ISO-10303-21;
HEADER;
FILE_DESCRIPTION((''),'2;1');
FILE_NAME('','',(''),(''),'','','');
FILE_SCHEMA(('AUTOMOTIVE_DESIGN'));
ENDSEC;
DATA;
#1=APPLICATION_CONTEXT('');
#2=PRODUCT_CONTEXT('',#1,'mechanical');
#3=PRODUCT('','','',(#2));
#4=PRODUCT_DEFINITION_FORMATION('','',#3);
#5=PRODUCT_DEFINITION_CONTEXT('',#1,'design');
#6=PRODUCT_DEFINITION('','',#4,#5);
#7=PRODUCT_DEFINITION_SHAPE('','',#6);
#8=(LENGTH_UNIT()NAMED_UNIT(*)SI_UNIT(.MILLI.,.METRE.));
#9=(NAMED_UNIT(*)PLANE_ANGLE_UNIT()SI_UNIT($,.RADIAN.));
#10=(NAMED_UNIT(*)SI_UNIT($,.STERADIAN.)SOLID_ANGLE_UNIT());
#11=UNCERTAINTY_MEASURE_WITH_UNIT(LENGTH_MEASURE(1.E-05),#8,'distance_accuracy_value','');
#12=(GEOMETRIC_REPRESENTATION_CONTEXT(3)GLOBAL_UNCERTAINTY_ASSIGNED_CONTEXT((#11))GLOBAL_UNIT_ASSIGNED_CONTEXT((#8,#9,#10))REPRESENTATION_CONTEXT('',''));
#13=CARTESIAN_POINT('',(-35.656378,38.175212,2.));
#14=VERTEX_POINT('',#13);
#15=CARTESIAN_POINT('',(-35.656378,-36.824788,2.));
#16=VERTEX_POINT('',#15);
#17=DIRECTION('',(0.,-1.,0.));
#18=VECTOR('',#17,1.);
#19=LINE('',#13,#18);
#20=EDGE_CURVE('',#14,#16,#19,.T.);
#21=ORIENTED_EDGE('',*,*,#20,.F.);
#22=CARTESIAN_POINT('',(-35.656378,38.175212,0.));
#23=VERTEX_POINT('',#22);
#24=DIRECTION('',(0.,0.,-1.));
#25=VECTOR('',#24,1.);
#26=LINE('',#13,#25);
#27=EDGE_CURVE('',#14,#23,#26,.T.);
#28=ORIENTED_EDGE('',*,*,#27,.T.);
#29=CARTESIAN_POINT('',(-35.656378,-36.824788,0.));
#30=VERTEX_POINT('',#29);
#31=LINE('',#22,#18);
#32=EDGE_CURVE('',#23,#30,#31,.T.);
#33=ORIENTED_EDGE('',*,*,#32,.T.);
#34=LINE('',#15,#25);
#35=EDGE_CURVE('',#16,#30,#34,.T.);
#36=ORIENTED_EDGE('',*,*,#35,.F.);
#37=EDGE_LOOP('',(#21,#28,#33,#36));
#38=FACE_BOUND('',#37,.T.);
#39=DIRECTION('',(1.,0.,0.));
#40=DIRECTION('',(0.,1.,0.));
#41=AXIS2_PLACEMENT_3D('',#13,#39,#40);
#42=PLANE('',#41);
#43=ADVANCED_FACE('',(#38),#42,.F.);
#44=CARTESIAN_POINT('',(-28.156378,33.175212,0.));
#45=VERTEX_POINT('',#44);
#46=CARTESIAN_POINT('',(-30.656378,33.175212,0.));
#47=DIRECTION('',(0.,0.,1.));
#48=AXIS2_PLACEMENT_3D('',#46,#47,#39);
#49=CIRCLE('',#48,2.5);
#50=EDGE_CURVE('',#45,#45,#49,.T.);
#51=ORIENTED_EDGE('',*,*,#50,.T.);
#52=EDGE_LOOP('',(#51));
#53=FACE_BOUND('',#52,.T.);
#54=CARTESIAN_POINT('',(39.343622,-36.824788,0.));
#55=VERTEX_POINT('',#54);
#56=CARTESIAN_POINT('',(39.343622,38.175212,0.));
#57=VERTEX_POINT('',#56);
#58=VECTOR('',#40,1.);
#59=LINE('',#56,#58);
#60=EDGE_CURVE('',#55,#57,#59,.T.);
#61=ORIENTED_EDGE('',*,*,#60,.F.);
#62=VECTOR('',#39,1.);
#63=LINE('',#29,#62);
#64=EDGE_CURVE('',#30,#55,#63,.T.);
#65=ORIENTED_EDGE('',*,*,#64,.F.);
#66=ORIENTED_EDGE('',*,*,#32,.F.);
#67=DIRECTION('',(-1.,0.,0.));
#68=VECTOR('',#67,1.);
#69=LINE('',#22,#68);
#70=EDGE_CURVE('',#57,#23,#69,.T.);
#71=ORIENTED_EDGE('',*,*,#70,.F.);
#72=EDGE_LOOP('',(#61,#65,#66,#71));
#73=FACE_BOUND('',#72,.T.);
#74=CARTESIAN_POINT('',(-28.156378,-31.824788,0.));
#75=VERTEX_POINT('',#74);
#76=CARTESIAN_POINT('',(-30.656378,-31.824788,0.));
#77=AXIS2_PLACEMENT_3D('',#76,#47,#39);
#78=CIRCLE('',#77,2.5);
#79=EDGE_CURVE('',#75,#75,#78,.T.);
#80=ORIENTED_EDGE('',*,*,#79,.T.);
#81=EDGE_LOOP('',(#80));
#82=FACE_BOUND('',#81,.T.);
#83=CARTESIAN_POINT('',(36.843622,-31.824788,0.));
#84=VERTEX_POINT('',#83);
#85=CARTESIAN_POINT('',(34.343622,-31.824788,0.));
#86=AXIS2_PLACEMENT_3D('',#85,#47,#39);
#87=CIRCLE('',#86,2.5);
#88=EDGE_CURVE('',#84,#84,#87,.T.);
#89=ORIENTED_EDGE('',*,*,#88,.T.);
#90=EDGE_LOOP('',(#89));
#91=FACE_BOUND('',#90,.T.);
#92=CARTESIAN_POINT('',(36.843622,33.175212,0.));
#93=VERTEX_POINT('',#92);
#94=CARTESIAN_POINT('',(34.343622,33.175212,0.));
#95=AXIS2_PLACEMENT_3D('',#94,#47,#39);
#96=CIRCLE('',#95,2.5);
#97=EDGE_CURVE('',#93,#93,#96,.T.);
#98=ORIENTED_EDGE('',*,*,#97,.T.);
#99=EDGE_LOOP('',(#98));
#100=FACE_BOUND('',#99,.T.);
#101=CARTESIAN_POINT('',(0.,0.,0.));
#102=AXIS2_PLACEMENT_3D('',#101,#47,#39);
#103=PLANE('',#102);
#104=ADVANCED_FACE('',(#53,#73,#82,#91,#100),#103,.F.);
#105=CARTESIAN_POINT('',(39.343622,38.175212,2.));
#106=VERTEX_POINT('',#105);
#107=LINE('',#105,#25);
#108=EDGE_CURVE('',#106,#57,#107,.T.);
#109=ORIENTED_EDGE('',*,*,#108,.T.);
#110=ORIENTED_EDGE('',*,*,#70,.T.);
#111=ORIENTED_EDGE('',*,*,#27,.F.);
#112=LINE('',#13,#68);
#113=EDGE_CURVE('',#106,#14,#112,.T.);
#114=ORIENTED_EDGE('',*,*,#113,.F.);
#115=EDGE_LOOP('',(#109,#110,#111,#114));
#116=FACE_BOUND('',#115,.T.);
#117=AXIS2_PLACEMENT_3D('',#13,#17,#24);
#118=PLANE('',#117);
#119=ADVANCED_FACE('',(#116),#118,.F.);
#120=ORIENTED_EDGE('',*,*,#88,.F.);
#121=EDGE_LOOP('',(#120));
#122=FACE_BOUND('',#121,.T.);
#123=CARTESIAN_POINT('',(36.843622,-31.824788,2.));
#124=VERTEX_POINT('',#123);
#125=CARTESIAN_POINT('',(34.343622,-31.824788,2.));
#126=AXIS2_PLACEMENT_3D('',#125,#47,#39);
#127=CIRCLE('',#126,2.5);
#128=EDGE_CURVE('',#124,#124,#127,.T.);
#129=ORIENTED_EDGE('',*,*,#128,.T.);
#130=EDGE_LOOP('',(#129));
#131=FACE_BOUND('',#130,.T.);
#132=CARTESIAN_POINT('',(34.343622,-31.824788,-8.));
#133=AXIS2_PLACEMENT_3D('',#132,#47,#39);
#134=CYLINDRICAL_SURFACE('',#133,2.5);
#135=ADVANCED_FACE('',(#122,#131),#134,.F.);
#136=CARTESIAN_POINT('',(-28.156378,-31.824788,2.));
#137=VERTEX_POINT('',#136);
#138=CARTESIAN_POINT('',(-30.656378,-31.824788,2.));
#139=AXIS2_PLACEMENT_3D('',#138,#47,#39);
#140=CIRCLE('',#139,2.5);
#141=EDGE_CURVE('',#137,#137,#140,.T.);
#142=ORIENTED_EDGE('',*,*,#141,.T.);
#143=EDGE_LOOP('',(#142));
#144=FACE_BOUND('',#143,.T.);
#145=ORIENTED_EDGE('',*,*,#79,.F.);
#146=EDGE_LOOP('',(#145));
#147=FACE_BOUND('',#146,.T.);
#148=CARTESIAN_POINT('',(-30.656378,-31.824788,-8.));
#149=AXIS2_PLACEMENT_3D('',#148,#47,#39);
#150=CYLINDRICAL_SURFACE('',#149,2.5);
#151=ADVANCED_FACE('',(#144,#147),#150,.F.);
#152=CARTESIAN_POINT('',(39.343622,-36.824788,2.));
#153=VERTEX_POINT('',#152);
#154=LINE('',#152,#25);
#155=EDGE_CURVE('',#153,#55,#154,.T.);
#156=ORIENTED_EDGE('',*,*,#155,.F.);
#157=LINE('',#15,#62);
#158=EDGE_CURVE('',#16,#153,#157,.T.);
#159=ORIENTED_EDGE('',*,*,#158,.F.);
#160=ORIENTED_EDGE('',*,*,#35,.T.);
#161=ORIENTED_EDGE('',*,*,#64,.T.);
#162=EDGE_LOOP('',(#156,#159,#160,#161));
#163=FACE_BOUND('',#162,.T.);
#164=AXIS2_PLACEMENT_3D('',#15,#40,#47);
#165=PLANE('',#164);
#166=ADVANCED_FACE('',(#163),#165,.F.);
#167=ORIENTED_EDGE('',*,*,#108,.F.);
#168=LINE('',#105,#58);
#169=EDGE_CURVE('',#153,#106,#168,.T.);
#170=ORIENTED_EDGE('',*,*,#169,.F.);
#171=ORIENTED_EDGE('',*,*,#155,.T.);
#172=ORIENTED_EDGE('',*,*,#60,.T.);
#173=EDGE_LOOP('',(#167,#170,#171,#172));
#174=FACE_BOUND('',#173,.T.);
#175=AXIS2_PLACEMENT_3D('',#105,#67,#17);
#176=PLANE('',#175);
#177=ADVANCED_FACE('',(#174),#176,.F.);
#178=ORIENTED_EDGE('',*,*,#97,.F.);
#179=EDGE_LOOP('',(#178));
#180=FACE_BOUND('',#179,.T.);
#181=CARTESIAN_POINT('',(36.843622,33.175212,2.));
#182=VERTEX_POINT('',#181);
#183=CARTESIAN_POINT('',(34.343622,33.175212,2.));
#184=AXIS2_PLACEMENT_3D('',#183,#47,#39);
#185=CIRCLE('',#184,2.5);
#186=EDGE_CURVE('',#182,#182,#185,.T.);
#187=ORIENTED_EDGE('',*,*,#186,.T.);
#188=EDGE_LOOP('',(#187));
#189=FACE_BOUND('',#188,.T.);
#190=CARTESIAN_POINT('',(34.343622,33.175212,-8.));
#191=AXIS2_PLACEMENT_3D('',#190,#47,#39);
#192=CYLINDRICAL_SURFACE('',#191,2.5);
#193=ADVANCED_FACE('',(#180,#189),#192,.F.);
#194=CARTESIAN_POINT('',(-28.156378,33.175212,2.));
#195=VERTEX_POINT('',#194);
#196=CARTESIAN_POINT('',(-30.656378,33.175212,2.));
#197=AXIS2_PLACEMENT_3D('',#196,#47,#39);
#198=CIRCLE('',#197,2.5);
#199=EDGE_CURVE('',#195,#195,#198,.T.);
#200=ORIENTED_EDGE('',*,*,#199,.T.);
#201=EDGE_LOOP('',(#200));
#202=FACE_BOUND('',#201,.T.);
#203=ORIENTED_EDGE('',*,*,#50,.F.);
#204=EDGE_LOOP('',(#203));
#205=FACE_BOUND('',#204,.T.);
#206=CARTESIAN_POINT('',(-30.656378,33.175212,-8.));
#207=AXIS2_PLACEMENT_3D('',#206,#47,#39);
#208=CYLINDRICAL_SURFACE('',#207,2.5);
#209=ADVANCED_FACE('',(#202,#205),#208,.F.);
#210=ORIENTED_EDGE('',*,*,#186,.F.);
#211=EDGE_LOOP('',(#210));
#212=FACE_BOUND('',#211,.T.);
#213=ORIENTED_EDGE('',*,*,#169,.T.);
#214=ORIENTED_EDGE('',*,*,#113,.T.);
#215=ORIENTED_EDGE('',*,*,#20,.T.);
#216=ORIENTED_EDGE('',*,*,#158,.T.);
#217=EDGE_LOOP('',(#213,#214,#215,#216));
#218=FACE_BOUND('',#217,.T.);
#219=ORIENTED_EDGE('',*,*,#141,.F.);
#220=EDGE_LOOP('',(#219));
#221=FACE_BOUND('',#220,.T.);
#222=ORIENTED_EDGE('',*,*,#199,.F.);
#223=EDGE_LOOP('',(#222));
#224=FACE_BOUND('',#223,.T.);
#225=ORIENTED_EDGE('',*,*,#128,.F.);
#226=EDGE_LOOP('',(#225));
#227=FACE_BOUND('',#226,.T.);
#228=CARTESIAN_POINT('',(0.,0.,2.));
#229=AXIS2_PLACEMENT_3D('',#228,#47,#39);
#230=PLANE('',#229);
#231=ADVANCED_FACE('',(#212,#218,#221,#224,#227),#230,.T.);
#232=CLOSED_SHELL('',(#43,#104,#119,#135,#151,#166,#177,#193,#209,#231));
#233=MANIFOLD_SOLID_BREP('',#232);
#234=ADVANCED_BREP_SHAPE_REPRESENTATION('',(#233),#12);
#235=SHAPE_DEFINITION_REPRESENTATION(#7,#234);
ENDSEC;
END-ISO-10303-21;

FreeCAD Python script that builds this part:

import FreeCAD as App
import Part
import Sketcher

V = App.Vector
Q = App.Units.Quantity

doc = App.newDocument("Part")
body = doc.addObject("PartDesign::Body", "Body")

# Sketch on XY plane
sketch1 = body.newObject("Sketcher::SketchObject", "Sketch")
sketch1.AttachmentSupport = (doc.getObject("XY_Plane"), [""])
sketch1.MapMode = "FlatFace"
sketch1.addGeometry(Part.LineSegment(V(-36, 38, 0), V(-36, -37, 0)), False)
sketch1.addGeometry(Part.LineSegment(V(-36, -37, 0), V(39, -37, 0)), False)
sketch1.addGeometry(Part.LineSegment(V(39, -37, 0), V(39, 38, 0)), False)
sketch1.addGeometry(Part.LineSegment(V(39, 38, 0), V(-36, 38, 0)), False)
sketch1.addConstraint(Sketcher.Constraint("Coincident", 0, 2, 1, 1))
sketch1.addConstraint(Sketcher.Constraint("Coincident", 1, 2, 2, 1))
sketch1.addConstraint(Sketcher.Constraint("Coincident", 2, 2, 3, 1))
sketch1.addConstraint(Sketcher.Constraint("Coincident", 3, 2, 0, 1))
sketch1.addConstraint(Sketcher.Constraint("Vertical", 0))
sketch1.addConstraint(Sketcher.Constraint("Horizontal", 1))
sketch1.addConstraint(Sketcher.Constraint("Vertical", 2))
sketch1.addConstraint(Sketcher.Constraint("Horizontal", 3))
sketch1.addConstraint(Sketcher.Constraint("Equal", 3, 0))
sketch1.addConstraint(Sketcher.Constraint("DistanceX", 1, 1, 1, 2, Q("75 mm")))
sketch1.addConstraint(Sketcher.Constraint("DistanceX", 0, 2, -1, 1, Q("35.656378 mm")))
sketch1.addConstraint(Sketcher.Constraint("DistanceY", 0, 2, -1, 1, Q("36.824788 mm")))
pad1 = body.newObject("PartDesign::Pad", "Pad")
pad1.Profile = sketch1
pad1.Length = 2

# Sketch on XY plane
sketch2 = body.newObject("Sketcher::SketchObject", "Sketch001")
sketch2.AttachmentSupport = (doc.getObject("XY_Plane"), [""])
sketch2.MapMode = "FlatFace"
sketch2.AttachmentOffset = App.Placement(V(0, 0, 2), App.Rotation())
sketch2.addGeometry(Part.Circle(V(-30.7, 33.2, 0), V(0, 0, 1), 2.5), False)
sketch2.addGeometry(Part.Circle(V(-30.7, -31.8, 0), V(0, 0, 1), 2.5), False)
sketch2.addGeometry(Part.Circle(V(34.3, 33.2, 0), V(0, 0, 1), 2.5), False)
sketch2.addGeometry(Part.Circle(V(34.3, -31.8, 0), V(0, 0, 1), 2.5), False)
sketch2.addConstraint(Sketcher.Constraint("Equal", 0, 1))
sketch2.addConstraint(Sketcher.Constraint("Equal", 1, 2))
sketch2.addConstraint(Sketcher.Constraint("Equal", 2, 3))
sketch2.addConstraint(Sketcher.Constraint("Horizontal", 0, 3, 2, 3))
sketch2.addConstraint(Sketcher.Constraint("Horizontal", 1, 3, 3, 3))
sketch2.addConstraint(Sketcher.Constraint("Vertical", 0, 3, 1, 3))
sketch2.addConstraint(Sketcher.Constraint("Vertical", 2, 3, 3, 3))
sketch2.addConstraint(Sketcher.Constraint("Diameter", 0, Q("5 mm")))
sketch2.addConstraint(Sketcher.Constraint("DistanceY", 1, 3, 0, 3, Q("65 mm")))
sketch2.addConstraint(Sketcher.Constraint("DistanceX", 0, 3, 2, 3, Q("65 mm")))
sketch2.addConstraint(Sketcher.Constraint("DistanceX", 0, 3, -1, 1, Q("30.656378 mm")))
sketch2.addConstraint(Sketcher.Constraint("DistanceY", -1, 1, 0, 3, Q("33.175212 mm")))
pocket1 = body.newObject("PartDesign::Pocket", "Pocket")
pocket1.Profile = sketch2
pocket1.Length = 10

doc.recompute()
